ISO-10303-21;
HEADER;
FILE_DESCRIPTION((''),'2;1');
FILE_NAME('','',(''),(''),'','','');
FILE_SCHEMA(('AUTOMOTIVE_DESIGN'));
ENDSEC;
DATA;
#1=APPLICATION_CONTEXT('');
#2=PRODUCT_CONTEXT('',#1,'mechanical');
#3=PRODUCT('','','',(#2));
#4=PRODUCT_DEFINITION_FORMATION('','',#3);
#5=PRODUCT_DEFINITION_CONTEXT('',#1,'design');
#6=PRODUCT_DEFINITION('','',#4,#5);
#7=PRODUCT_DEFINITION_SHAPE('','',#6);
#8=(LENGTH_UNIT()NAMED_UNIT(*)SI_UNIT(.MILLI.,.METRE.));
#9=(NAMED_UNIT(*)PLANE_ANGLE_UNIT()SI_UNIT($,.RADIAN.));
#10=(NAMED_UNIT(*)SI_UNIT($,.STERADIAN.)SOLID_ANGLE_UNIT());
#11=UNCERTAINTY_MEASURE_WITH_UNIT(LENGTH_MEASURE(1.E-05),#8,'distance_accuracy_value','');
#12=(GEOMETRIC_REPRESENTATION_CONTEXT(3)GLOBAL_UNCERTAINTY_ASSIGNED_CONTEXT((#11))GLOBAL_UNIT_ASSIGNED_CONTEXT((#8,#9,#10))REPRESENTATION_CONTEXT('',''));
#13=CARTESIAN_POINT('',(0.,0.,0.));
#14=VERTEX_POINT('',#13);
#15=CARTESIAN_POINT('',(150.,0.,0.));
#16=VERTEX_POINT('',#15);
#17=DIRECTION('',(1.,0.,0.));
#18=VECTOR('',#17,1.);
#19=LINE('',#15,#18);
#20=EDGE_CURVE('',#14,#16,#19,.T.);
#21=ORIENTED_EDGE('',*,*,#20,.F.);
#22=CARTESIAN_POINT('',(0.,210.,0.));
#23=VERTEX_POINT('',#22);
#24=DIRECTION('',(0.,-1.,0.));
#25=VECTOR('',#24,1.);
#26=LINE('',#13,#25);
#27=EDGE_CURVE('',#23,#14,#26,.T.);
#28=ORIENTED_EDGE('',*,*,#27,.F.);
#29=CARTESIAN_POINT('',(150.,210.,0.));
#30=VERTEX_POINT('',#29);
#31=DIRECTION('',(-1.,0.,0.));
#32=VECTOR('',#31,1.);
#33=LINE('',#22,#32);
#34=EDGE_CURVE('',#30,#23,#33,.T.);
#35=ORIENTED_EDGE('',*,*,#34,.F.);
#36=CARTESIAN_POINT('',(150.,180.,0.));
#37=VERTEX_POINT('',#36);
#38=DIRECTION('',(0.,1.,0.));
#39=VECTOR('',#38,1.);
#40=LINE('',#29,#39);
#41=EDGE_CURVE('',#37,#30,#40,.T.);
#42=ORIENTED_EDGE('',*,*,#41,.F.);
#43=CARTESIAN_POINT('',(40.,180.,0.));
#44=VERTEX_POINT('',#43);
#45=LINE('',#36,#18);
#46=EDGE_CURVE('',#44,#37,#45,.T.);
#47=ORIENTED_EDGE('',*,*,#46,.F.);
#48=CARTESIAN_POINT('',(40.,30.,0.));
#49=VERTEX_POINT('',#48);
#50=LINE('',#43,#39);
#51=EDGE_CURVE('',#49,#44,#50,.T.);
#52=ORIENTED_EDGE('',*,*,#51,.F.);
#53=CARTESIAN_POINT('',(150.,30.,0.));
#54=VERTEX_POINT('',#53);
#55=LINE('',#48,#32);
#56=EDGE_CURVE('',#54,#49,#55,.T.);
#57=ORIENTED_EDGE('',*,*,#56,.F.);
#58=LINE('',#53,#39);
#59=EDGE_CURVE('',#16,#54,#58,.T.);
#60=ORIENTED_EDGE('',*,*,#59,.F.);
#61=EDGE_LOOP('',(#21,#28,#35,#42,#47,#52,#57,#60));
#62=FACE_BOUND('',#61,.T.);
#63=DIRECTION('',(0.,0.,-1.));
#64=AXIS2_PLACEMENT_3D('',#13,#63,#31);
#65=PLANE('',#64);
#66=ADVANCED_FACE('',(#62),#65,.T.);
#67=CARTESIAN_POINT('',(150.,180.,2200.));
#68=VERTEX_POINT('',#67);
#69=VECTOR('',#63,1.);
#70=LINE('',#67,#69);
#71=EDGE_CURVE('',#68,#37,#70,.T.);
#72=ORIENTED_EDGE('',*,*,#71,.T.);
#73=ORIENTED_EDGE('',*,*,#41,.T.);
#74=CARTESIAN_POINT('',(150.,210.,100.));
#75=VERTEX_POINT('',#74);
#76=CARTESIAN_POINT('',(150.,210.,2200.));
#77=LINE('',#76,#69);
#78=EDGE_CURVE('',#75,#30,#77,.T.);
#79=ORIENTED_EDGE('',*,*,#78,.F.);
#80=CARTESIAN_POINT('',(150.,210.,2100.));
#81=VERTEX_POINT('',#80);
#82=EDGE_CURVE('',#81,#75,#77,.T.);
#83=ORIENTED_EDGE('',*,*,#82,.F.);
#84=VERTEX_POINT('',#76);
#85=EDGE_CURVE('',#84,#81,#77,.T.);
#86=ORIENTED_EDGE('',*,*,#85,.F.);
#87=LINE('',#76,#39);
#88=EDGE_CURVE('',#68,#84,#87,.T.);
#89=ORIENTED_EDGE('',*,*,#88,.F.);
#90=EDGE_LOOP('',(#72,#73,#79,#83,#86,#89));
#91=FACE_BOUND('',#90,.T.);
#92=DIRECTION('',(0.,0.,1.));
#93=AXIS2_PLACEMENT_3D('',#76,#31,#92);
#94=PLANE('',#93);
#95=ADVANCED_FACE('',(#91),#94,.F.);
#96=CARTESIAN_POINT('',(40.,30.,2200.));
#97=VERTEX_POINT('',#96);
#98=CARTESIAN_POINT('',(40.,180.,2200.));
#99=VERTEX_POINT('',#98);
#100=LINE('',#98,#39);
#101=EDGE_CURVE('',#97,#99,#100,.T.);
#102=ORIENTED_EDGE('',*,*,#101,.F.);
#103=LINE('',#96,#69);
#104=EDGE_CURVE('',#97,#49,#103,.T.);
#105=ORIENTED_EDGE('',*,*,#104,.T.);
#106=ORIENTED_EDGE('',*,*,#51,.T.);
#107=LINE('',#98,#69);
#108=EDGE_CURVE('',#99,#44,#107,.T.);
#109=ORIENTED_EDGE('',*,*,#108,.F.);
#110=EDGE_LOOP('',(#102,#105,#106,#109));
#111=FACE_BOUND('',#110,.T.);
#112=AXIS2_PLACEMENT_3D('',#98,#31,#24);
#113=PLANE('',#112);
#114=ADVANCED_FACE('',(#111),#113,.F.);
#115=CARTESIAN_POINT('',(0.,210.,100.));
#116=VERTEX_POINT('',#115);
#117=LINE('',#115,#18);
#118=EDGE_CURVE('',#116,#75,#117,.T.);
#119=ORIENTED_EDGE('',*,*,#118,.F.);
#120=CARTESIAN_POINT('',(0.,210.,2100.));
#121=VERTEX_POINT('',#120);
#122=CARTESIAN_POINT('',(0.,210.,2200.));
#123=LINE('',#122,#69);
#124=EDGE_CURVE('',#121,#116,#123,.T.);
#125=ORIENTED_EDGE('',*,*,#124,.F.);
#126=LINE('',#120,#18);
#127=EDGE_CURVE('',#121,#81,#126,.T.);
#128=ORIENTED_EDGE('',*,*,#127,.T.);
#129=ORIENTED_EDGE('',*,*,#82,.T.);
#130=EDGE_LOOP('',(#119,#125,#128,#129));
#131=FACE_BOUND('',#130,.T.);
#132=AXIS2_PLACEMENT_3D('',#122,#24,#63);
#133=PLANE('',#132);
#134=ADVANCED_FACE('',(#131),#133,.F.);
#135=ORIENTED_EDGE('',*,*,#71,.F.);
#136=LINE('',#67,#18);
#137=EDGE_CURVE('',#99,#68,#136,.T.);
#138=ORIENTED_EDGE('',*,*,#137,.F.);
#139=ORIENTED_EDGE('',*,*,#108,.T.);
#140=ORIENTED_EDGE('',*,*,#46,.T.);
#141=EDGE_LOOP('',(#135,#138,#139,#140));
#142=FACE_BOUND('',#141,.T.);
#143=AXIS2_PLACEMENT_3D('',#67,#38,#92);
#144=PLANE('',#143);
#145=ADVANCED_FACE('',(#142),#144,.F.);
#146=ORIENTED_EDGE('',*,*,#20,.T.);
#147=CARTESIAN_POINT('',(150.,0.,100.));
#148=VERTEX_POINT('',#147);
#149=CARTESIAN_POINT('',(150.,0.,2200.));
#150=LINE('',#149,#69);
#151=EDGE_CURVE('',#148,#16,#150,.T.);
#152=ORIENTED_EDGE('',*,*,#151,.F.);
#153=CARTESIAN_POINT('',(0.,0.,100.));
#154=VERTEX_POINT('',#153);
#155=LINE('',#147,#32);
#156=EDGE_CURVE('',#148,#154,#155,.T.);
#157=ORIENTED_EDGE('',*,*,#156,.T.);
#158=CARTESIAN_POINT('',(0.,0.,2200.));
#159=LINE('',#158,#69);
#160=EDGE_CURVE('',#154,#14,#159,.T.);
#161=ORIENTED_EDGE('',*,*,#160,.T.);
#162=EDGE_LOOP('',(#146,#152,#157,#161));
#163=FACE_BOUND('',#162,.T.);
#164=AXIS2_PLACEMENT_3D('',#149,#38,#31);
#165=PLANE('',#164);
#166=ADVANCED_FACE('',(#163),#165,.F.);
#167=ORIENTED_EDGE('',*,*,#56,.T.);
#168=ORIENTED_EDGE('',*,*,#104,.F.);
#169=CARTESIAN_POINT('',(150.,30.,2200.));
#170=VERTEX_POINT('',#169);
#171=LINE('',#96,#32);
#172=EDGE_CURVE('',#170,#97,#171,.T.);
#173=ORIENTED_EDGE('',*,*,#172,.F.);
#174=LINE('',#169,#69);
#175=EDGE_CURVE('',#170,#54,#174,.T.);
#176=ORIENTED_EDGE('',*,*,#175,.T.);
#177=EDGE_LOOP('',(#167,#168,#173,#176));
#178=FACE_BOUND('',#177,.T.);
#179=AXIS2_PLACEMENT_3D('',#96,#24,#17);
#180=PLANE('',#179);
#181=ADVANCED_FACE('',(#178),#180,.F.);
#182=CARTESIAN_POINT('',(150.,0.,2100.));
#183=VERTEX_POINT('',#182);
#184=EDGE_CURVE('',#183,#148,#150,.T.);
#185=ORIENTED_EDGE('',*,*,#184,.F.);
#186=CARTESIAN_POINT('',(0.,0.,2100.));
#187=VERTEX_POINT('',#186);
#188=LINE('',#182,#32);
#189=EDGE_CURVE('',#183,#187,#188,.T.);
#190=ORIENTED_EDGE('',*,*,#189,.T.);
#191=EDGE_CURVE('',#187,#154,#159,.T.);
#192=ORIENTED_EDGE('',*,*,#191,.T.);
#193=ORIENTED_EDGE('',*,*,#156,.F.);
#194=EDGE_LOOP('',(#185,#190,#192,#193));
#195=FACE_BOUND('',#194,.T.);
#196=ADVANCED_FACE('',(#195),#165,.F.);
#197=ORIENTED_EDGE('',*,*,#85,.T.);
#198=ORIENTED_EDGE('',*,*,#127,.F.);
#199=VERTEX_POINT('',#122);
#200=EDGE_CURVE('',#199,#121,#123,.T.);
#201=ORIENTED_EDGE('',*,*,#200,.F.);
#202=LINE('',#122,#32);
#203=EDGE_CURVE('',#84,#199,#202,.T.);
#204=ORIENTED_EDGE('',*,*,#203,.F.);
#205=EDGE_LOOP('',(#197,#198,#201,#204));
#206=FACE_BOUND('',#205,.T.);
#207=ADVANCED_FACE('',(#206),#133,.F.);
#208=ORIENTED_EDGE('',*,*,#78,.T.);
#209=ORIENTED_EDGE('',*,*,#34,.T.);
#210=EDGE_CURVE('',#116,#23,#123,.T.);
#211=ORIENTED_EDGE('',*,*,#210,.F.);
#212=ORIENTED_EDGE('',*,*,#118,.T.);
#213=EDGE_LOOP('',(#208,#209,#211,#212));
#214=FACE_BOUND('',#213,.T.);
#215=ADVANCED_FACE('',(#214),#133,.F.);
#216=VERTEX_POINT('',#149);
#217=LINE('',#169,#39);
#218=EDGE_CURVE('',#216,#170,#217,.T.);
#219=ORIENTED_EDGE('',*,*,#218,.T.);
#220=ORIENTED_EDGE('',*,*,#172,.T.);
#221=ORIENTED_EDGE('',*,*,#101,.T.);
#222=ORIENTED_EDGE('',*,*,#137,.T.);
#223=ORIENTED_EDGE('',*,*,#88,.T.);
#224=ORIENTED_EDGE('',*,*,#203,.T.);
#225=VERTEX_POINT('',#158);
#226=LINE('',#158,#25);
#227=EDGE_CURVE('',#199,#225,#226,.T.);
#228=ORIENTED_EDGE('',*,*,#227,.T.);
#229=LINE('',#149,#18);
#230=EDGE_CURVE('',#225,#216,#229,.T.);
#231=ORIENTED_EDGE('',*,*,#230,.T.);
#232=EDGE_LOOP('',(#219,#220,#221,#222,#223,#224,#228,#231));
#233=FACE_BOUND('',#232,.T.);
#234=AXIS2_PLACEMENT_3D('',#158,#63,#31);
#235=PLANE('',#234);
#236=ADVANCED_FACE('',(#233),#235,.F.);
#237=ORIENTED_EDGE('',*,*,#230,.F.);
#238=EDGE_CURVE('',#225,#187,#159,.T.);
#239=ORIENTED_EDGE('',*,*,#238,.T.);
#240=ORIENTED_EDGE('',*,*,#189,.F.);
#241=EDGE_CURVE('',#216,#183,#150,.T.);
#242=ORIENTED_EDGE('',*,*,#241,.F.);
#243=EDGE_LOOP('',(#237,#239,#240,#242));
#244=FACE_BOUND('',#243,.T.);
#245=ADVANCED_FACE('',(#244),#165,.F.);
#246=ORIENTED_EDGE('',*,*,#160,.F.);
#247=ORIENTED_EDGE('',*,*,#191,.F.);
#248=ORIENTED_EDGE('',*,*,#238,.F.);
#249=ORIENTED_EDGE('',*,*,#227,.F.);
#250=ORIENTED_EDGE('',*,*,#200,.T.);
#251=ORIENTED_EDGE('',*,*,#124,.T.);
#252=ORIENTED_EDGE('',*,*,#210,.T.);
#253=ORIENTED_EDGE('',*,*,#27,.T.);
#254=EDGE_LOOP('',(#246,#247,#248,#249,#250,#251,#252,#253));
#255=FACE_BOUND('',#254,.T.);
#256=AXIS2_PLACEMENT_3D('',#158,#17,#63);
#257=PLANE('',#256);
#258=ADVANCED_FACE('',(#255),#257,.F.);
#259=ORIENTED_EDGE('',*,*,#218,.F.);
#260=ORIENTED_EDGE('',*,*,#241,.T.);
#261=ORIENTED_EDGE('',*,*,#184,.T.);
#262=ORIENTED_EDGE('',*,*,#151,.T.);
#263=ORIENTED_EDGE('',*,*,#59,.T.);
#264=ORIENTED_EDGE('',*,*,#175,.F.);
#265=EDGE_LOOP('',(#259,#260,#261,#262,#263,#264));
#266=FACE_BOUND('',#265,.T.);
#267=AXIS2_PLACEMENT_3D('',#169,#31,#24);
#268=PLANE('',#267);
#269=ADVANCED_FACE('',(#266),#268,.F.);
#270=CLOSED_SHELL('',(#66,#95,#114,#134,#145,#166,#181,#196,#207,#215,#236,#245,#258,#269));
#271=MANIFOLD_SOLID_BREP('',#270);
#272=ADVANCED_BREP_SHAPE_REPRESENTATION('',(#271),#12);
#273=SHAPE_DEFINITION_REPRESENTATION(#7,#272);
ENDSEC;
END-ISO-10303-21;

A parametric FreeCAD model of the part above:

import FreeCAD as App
import Part
import Sketcher

V = App.Vector
Q = App.Units.Quantity

doc = App.newDocument("Part")
params = doc.addObject("Spreadsheet::Sheet", "Params")
for row, (alias, value) in enumerate([
    ("sketch1_width", "150 mm"),
    ("sketch1_width2", "110 mm"),
    ("sketch1_height", "210 mm"),
    ("pad1_length", "2200 mm"),
], start=1):
    params.set(f"A{row}", alias)
    params.set(f"B{row}", "=" + value)
    params.setAlias(f"B{row}", alias)

body = doc.addObject("PartDesign::Body", "Body")

sketch1 = doc.addObject("Sketcher::SketchObject", "Sketch")
body.addObject(sketch1)
sketch1.AttachmentSupport = (doc.XY_Plane, [""])
sketch1.MapMode = "FlatFace"
sketch1.addGeometry(Part.LineSegment(V(0, 210, 0), V(0, 0, 0)), False)
sketch1.addGeometry(Part.LineSegment(V(0, 0, 0), V(150, 0, 0)), False)
sketch1.addGeometry(Part.LineSegment(V(150, 0, 0), V(150, 30, 0)), False)
sketch1.addGeometry(Part.LineSegment(V(150, 30, 0), V(40, 30, 0)), False)
sketch1.addGeometry(Part.LineSegment(V(40, 30, 0), V(40, 180, 0)), False)
sketch1.addGeometry(Part.LineSegment(V(40, 180, 0), V(150, 180, 0)), False)
sketch1.addGeometry(Part.LineSegment(V(150, 180, 0), V(150, 210, 0)), False)
sketch1.addGeometry(Part.LineSegment(V(150, 210, 0), V(0, 210, 0)), False)
sketch1.addConstraint(Sketcher.Constraint("Coincident", 0, 2, 1, 1))
sketch1.addConstraint(Sketcher.Constraint("Coincident", 1, 2, 2, 1))
sketch1.addConstraint(Sketcher.Constraint("Coincident", 2, 2, 3, 1))
sketch1.addConstraint(Sketcher.Constraint("Coincident", 3, 2, 4, 1))
sketch1.addConstraint(Sketcher.Constraint("Coincident", 4, 2, 5, 1))
sketch1.addConstraint(Sketcher.Constraint("Coincident", 5, 2, 6, 1))
sketch1.addConstraint(Sketcher.Constraint("Coincident", 6, 2, 7, 1))
sketch1.addConstraint(Sketcher.Constraint("Coincident", 7, 2, 0, 1))
sketch1.addConstraint(Sketcher.Constraint("Vertical", 0))
sketch1.addConstraint(Sketcher.Constraint("Horizontal", 1))
sketch1.addConstraint(Sketcher.Constraint("Vertical", 2))
sketch1.addConstraint(Sketcher.Constraint("Horizontal", 3))
sketch1.addConstraint(Sketcher.Constraint("Vertical", 4))
sketch1.addConstraint(Sketcher.Constraint("Horizontal", 5))
sketch1.addConstraint(Sketcher.Constraint("Vertical", 6))
sketch1.addConstraint(Sketcher.Constraint("Horizontal", 7))
sketch1.addConstraint(Sketcher.Constraint("Coincident", 0, 2, -1, 1))
sketch1.addConstraint(Sketcher.Constraint("Vertical", 2, 2, 5, 2))
sketch1.addConstraint(Sketcher.Constraint("Equal", 7, 4))
sketch1.addConstraint(Sketcher.Constraint("Equal", 2, 6))
sketch1.addConstraint(Sketcher.Constraint("DistanceX", 1, 1, 1, 2, Q("150 mm")))
sketch1.addConstraint(Sketcher.Constraint("DistanceX", 3, 2, 3, 1, Q("110 mm")))
sketch1.addConstraint(Sketcher.Constraint("DistanceY", 0, 2, 0, 1, Q("210 mm")))
sketch1.setExpression("Constraints[20]", "Params.sketch1_width")
sketch1.setExpression("Constraints[21]", "Params.sketch1_width2")
sketch1.setExpression("Constraints[22]", "Params.sketch1_height")
pad1 = doc.addObject("PartDesign::Pad", "Pad")
body.addObject(pad1)
pad1.Profile = sketch1
pad1.setExpression("Length", "Params.pad1_length")

doc.recompute()
